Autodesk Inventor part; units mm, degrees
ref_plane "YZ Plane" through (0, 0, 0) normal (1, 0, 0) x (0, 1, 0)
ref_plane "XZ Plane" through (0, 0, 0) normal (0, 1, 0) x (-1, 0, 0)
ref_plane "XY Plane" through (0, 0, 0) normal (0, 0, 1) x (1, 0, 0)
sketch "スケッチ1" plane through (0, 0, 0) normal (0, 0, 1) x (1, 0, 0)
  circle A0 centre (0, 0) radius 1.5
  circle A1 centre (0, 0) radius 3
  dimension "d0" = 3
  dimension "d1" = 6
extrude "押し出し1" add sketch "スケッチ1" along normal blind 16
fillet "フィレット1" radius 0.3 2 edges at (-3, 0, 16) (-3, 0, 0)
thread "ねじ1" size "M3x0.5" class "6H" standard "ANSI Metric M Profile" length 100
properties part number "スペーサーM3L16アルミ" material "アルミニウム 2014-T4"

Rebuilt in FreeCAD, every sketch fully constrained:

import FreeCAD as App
import Part
import Sketcher
from FreeCAD import Vector
Q = App.Units.Quantity


def edges_at(feature, points):
    """Names of the edges that pass closest to the given points."""
    edges = feature.Shape.Edges
    near = lambda p: min(range(len(edges)), key=lambda i: edges[i].distToShape(Part.Vertex(*p))[0])
    return sorted({f"Edge{near(p) + 1}" for p in points})

doc = App.newDocument("Part")
body = doc.addObject("PartDesign::Body", "Body")

sketch1 = body.newObject("Sketcher::SketchObject", "Sketch")
sketch1.AttachmentSupport = (doc.getObject("XY_Plane"), [""])
sketch1.MapMode = "FlatFace"
sketch1.addGeometry(Part.Circle(Vector(0, 0, 0), Vector(0, 0, 1), 3), False)
sketch1.addGeometry(Part.Circle(Vector(0, 0, 0), Vector(0, 0, 1), 1.5), False)
sketch1.addConstraint(Sketcher.Constraint("Coincident", 0, 3, -1, 1))
sketch1.addConstraint(Sketcher.Constraint("Coincident", 1, 3, -1, 1))
sketch1.addConstraint(Sketcher.Constraint("Diameter", 0, Q("6 mm")))
sketch1.addConstraint(Sketcher.Constraint("Diameter", 1, Q("3 mm")))
pad1 = body.newObject("PartDesign::Pad", "Pad")
pad1.Profile = sketch1
pad1.Length = 16
doc.recompute()

fillet = body.newObject("PartDesign::Fillet", "Fillet")
fillet.Base = (pad1, edges_at(pad1, [(-3, 0, 16), (-3, 0, 0)]))
fillet.Radius = 0.3

doc.recompute()
